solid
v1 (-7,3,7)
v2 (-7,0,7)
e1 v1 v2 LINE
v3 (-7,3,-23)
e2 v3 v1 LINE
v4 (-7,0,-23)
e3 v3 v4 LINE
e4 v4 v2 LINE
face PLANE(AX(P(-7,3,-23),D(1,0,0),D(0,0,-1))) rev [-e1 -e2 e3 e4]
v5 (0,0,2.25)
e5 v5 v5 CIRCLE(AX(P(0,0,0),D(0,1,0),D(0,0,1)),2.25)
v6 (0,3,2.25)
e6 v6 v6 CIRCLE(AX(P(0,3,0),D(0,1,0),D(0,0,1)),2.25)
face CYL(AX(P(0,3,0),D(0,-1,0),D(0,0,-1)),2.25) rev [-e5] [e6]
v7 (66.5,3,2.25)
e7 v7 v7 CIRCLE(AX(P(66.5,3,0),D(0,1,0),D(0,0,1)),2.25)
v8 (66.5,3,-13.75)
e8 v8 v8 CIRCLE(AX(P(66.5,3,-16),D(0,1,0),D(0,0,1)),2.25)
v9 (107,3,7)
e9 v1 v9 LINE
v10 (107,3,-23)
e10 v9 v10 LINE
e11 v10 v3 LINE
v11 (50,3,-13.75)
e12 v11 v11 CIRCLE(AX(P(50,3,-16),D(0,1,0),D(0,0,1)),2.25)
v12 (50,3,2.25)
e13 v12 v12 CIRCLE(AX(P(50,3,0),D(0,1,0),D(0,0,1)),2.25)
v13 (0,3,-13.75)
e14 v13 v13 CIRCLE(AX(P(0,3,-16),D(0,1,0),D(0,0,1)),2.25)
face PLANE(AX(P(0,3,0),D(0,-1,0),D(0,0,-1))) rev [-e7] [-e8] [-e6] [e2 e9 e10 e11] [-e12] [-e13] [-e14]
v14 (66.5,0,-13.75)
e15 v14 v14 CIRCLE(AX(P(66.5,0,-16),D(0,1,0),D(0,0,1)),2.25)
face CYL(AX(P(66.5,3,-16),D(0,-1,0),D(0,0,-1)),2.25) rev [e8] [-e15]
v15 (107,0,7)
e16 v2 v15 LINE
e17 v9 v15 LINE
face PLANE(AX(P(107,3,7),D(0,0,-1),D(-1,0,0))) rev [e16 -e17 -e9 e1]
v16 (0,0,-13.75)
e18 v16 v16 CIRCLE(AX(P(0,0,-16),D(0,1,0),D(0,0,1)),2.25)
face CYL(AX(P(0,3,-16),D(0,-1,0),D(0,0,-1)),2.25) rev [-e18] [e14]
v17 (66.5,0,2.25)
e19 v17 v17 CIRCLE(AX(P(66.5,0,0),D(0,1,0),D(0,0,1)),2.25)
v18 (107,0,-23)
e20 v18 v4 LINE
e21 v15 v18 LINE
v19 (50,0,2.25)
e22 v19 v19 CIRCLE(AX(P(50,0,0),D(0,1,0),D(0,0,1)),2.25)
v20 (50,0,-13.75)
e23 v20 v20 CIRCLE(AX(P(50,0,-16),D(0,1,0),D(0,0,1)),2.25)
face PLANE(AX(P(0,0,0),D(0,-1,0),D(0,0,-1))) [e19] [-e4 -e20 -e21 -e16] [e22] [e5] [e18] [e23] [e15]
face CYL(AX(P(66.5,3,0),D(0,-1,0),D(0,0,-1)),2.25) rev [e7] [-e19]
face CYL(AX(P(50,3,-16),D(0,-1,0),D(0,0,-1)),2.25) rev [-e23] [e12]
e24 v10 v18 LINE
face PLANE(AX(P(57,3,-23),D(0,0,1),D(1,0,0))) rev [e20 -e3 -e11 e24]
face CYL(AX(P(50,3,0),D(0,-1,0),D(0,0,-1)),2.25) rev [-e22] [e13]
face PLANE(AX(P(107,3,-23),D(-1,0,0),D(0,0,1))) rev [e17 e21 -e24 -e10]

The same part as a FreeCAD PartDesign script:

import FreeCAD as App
import Part
import Sketcher

V = App.Vector
Q = App.Units.Quantity


def add_polygon(sketch, points):
    """Adds a closed chain of lines whose ends are joined by coincident constraints."""
    first, n = sketch.GeometryCount, len(points)
    for a, b in zip(points, points[1:] + points[:1]):
        sketch.addGeometry(Part.LineSegment(App.Vector(*a, 0), App.Vector(*b, 0)), False)
    for i in range(n):
        sketch.addConstraint(Sketcher.Constraint("Coincident", first + i, 2, first + (i + 1) % n, 1))

doc = App.newDocument("Part")
body = doc.addObject("PartDesign::Body", "Body")

# Sketch on XZ plane
sketch1 = doc.addObject("Sketcher::SketchObject", "Sketch")
body.addObject(sketch1)
sketch1.AttachmentSupport = (doc.XZ_Plane, [""])
sketch1.MapMode = "FlatFace"
add_polygon(sketch1, [(-7, -23), (-7, 7), (107, 7), (107, -23)])  # lines 0-3
sketch1.addGeometry(Part.Circle(V(0, 0, 0), V(0, 0, 1), 2.2), False)  # 4
sketch1.addGeometry(Part.Circle(V(50, 0, 0), V(0, 0, 1), 2.2), False)  # 5
sketch1.addGeometry(Part.Circle(V(66.5, 0, 0), V(0, 0, 1), 2.2), False)  # 6
sketch1.addGeometry(Part.Circle(V(0, -16, 0), V(0, 0, 1), 2.2), False)  # 7
sketch1.addGeometry(Part.Circle(V(50, -16, 0), V(0, 0, 1), 2.2), False)  # 8
sketch1.addGeometry(Part.Circle(V(66.5, -16, 0), V(0, 0, 1), 2.2), False)  # 9
sketch1.addConstraint(Sketcher.Constraint("Vertical", 0))
sketch1.addConstraint(Sketcher.Constraint("Horizontal", 1))
sketch1.addConstraint(Sketcher.Constraint("Vertical", 2))
sketch1.addConstraint(Sketcher.Constraint("Horizontal", 3))
sketch1.addConstraint(Sketcher.Constraint("Coincident", 4, 3, -1, 1))
sketch1.addConstraint(Sketcher.Constraint("Equal", 4, 5))
sketch1.addConstraint(Sketcher.Constraint("Equal", 5, 6))
sketch1.addConstraint(Sketcher.Constraint("Equal", 6, 7))
sketch1.addConstraint(Sketcher.Constraint("Equal", 7, 8))
sketch1.addConstraint(Sketcher.Constraint("Equal", 8, 9))
sketch1.addConstraint(Sketcher.Constraint("PointOnObject", 5, 3, -1))
sketch1.addConstraint(Sketcher.Constraint("PointOnObject", 6, 3, -1))
sketch1.addConstraint(Sketcher.Constraint("PointOnObject", 7, 3, -2))
sketch1.addConstraint(Sketcher.Constraint("Horizontal", 7, 3, 8, 3))
sketch1.addConstraint(Sketcher.Constraint("Horizontal", 8, 3, 9, 3))
sketch1.addConstraint(Sketcher.Constraint("Vertical", 5, 3, 8, 3))
sketch1.addConstraint(Sketcher.Constraint("Vertical", 6, 3, 9, 3))
sketch1.addConstraint(Sketcher.Constraint("Diameter", 4, Q("4.5 mm")))
sketch1.addConstraint(Sketcher.Constraint("DistanceX", 1, 1, 1, 2, Q("114 mm")))
sketch1.addConstraint(Sketcher.Constraint("DistanceY", 0, 1, 0, 2, Q("30 mm")))
sketch1.addConstraint(Sketcher.Constraint("DistanceX", -1, 1, 5, 3, Q("50 mm")))
sketch1.addConstraint(Sketcher.Constraint("DistanceY", 7, 3, -1, 1, Q("16 mm")))
sketch1.addConstraint(Sketcher.Constraint("DistanceX", 0, 2, -1, 1, Q("7 mm")))
sketch1.addConstraint(Sketcher.Constraint("DistanceY", -1, 1, 0, 2, Q("7 mm")))
sketch1.addConstraint(Sketcher.Constraint("DistanceX", -1, 1, 6, 3, Q("66.5 mm")))
pad1 = doc.addObject("PartDesign::Pad", "Pad")
body.addObject(pad1)
pad1.Profile = sketch1
pad1.Length = 3
pad1.Reversed = True

doc.recompute()
